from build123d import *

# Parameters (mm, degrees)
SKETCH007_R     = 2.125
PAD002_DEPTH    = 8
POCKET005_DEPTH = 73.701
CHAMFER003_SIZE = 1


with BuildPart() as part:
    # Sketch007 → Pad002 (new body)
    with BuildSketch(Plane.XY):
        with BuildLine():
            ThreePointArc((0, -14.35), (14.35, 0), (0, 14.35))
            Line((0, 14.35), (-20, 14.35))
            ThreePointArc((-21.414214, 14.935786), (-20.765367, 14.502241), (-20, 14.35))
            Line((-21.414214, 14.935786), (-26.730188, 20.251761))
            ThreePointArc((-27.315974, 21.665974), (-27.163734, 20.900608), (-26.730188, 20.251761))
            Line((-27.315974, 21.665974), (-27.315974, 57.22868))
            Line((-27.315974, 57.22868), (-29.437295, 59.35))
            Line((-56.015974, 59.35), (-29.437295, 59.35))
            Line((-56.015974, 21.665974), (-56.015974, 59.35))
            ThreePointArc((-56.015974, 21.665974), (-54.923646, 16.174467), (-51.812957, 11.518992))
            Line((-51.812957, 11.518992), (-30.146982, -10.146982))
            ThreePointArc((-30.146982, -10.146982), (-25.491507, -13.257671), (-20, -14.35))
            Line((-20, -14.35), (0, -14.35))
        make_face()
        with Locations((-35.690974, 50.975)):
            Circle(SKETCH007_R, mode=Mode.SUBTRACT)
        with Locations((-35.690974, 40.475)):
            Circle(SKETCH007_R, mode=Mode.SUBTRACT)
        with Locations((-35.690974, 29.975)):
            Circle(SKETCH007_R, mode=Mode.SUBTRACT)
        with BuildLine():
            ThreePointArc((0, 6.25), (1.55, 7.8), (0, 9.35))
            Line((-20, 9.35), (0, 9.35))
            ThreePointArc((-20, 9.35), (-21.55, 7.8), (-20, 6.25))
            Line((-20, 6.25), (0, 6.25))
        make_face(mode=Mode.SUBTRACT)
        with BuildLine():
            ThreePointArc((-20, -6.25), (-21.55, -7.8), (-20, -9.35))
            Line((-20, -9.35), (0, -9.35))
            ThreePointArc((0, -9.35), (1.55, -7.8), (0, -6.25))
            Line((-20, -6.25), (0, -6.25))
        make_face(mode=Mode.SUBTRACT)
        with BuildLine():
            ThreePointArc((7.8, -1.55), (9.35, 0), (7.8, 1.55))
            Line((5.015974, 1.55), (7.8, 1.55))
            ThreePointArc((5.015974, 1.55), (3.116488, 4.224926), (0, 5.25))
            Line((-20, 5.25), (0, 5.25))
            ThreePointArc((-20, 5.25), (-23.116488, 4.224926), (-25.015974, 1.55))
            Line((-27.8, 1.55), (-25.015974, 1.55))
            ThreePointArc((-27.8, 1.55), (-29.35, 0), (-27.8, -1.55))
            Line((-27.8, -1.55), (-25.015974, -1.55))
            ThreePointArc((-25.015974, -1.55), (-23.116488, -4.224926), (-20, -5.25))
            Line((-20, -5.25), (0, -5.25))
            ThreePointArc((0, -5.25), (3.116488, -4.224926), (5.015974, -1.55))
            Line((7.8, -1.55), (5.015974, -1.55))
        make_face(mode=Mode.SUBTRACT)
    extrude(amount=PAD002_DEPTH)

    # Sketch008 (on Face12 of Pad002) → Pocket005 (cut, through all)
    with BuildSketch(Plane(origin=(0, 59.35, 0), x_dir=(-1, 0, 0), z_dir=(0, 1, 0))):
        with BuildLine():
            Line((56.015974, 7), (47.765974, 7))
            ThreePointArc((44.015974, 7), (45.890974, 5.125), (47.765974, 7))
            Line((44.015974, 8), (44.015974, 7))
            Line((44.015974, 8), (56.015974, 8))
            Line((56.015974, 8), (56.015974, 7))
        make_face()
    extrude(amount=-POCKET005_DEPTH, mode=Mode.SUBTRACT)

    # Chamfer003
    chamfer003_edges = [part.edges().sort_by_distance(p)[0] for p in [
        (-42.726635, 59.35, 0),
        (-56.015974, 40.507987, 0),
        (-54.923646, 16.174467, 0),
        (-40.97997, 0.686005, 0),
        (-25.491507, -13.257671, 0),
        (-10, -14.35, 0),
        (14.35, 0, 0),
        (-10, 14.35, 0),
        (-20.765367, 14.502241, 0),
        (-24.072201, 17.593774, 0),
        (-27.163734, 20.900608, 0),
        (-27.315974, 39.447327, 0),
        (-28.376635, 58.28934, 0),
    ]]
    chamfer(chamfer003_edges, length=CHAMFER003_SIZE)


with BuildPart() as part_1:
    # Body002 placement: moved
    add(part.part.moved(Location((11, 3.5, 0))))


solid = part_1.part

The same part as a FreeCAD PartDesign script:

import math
import FreeCAD as App
import Part
import Sketcher

V = App.Vector
Q = App.Units.Quantity


def edges_at(feature, points):
    """Names of the edges that pass closest to the given points."""
    edges = feature.Shape.Edges
    near = lambda p: min(range(len(edges)), key=lambda i: edges[i].distToShape(Part.Vertex(*p))[0])
    return sorted({f"Edge{near(p) + 1}" for p in points})

doc = App.newDocument("Part")
body = doc.addObject("PartDesign::Body", "Body")

# Sketch on XY plane
sketch1 = doc.addObject("Sketcher::SketchObject", "Sketch")
body.addObject(sketch1)
sketch1.AttachmentSupport = (doc.XY_Plane, [""])
sketch1.MapMode = "FlatFace"
sketch1.addGeometry(Part.ArcOfCircle(Part.Circle(V(0, 0, 0), V(0, 0, 1), 14.35), math.radians(-90), math.radians(90)), False)
sketch1.addGeometry(Part.LineSegment(V(0, 14.35, 0), V(-20, 14.35, 0)), False)
sketch1.addGeometry(Part.ArcOfCircle(Part.Circle(V(-19.999999, 16.350004, 0), V(0, 0, 1), 2.000004), math.radians(-134.999933), math.radians(-90.000024)), False)
sketch1.addGeometry(Part.LineSegment(V(-21.414214, 14.935786, 0), V(-26.730188, 20.251761, 0)), False)
sketch1.addGeometry(Part.ArcOfCircle(Part.Circle(V(-25.315981, 21.665971, 0), V(0, 0, 1), 1.999993), math.radians(179.99992), math.radians(225.000066)), False)
sketch1.addGeometry(Part.LineSegment(V(-27.315974, 21.665974, 0), V(-27.315974, 57.22868, 0)), False)
sketch1.addGeometry(Part.LineSegment(V(-27.315974, 57.22868, 0), V(-29.437295, 59.35, 0)), False)
sketch1.addGeometry(Part.LineSegment(V(-29.437295, 59.35, 0), V(-56.015974, 59.35, 0)), False)
sketch1.addGeometry(Part.LineSegment(V(-56.015974, 59.35, 0), V(-56.015974, 21.665974, 0)), False)
sketch1.addGeometry(Part.ArcOfCircle(Part.Circle(V(-41.665979, 21.665972, 0), V(0, 0, 1), 14.349995), math.radians(179.99999), math.radians(225.000004)), False)
sketch1.addGeometry(Part.LineSegment(V(-51.812957, 11.518992, 0), V(-30.146982, -10.146982, 0)), False)
sketch1.addGeometry(Part.ArcOfCircle(Part.Circle(V(-19.999999, 0.000002, 0), V(0, 0, 1), 14.350002), math.radians(-134.999999), math.radians(-90.000005)), False)
sketch1.addGeometry(Part.LineSegment(V(-20, -14.35, 0), V(0, -14.35, 0)), False)
sketch1.addGeometry(Part.ArcOfCircle(Part.Circle(V(-20, -7.8, 0), V(0, 0, 1), 1.55), math.radians(90), math.radians(270)), False)
sketch1.addGeometry(Part.LineSegment(V(-20, -6.25, 0), V(0, -6.25, 0)), False)
sketch1.addGeometry(Part.ArcOfCircle(Part.Circle(V(0, -7.8, 0), V(0, 0, 1), 1.55), math.radians(-90), math.radians(90)), False)
sketch1.addGeometry(Part.LineSegment(V(0, -9.35, 0), V(-20, -9.35, 0)), False)
sketch1.addGeometry(Part.ArcOfCircle(Part.Circle(V(7.8, 0, 0), V(0, 0, 1), 1.55), math.radians(-90), math.radians(90)), False)
sketch1.addGeometry(Part.LineSegment(V(7.8, -1.55, 0), V(5.015974, -1.55, 0)), False)
sketch1.addGeometry(Part.ArcOfCircle(Part.Circle(V(0, 0, 0), V(0, 0, 1), 5.25), math.radians(-89.999995), math.radians(-17.171815)), False)
sketch1.addGeometry(Part.LineSegment(V(0, -5.25, 0), V(-20, -5.25, 0)), False)
sketch1.addGeometry(Part.ArcOfCircle(Part.Circle(V(-20, 0, 0), V(0, 0, 1), 5.25), math.radians(-162.828185), math.radians(-90.000005)), False)
sketch1.addGeometry(Part.LineSegment(V(-25.015974, -1.55, 0), V(-27.8, -1.55, 0)), False)
sketch1.addGeometry(Part.ArcOfCircle(Part.Circle(V(-27.8, 0, 0), V(0, 0, 1), 1.55), math.radians(90), math.radians(270)), False)
sketch1.addGeometry(Part.LineSegment(V(-27.8, 1.55, 0), V(-25.015974, 1.55, 0)), False)
sketch1.addGeometry(Part.ArcOfCircle(Part.Circle(V(-20, 0, 0), V(0, 0, 1), 5.25), math.radians(90.000005), math.radians(162.828185)), False)
sketch1.addGeometry(Part.LineSegment(V(-20, 5.25, 0), V(0, 5.25, 0)), False)
sketch1.addGeometry(Part.ArcOfCircle(Part.Circle(V(0, 0, 0), V(0, 0, 1), 5.25), math.radians(17.171815), math.radians(89.999995)), False)
sketch1.addGeometry(Part.LineSegment(V(5.015974, 1.55, 0), V(7.8, 1.55, 0)), False)
sketch1.addGeometry(Part.ArcOfCircle(Part.Circle(V(0, 7.8, 0), V(0, 0, 1), 1.55), math.radians(-90), math.radians(90)), False)
sketch1.addGeometry(Part.LineSegment(V(0, 6.25, 0), V(-20, 6.25, 0)), False)
sketch1.addGeometry(Part.ArcOfCircle(Part.Circle(V(-20, 7.8, 0), V(0, 0, 1), 1.55), math.radians(90), math.radians(270)), False)
sketch1.addGeometry(Part.LineSegment(V(-20, 9.35, 0), V(0, 9.35, 0)), False)
sketch1.addGeometry(Part.Circle(V(-35.690974, 29.975, 0), V(0, 0, 1), 2.125), False)
sketch1.addGeometry(Part.Circle(V(-35.690974, 40.475, 0), V(0, 0, 1), 2.125), False)
sketch1.addGeometry(Part.Circle(V(-35.690974, 50.975, 0), V(0, 0, 1), 2.125), False)
sketch1.addConstraint(Sketcher.Constraint("Tangent", 0, 2, 1, 1))
sketch1.addConstraint(Sketcher.Constraint("Tangent", 1, 2, 2, 2))
sketch1.addConstraint(Sketcher.Constraint("Tangent", 2, 1, 3, 1))
sketch1.addConstraint(Sketcher.Constraint("Tangent", 3, 2, 4, 2))
sketch1.addConstraint(Sketcher.Constraint("Tangent", 4, 1, 5, 1))
sketch1.addConstraint(Sketcher.Constraint("Coincident", 5, 2, 6, 1))
sketch1.addConstraint(Sketcher.Constraint("Coincident", 6, 2, 7, 1))
sketch1.addConstraint(Sketcher.Constraint("Coincident", 7, 2, 8, 1))
sketch1.addConstraint(Sketcher.Constraint("Tangent", 8, 2, 9, 1))
sketch1.addConstraint(Sketcher.Constraint("Tangent", 9, 2, 10, 1))
sketch1.addConstraint(Sketcher.Constraint("Tangent", 10, 2, 11, 1))
sketch1.addConstraint(Sketcher.Constraint("Tangent", 11, 2, 12, 1))
sketch1.addConstraint(Sketcher.Constraint("Tangent", 12, 2, 0, 1))
sketch1.addConstraint(Sketcher.Constraint("Tangent", 13, 1, 14, 1))
sketch1.addConstraint(Sketcher.Constraint("Tangent", 14, 2, 15, 2))
sketch1.addConstraint(Sketcher.Constraint("Tangent", 15, 1, 16, 1))
sketch1.addConstraint(Sketcher.Constraint("Tangent", 16, 2, 13, 2))
sketch1.addConstraint(Sketcher.Constraint("Tangent", 17, 1, 18, 1))
sketch1.addConstraint(Sketcher.Constraint("Coincident", 18, 2, 19, 2))
sketch1.addConstraint(Sketcher.Constraint("Tangent", 19, 1, 20, 1))
sketch1.addConstraint(Sketcher.Constraint("Tangent", 20, 2, 21, 2))
sketch1.addConstraint(Sketcher.Constraint("Coincident", 21, 1, 22, 1))
sketch1.addConstraint(Sketcher.Constraint("Tangent", 22, 2, 23, 2))
sketch1.addConstraint(Sketcher.Constraint("Tangent", 23, 1, 24, 1))
sketch1.addConstraint(Sketcher.Constraint("Coincident", 24, 2, 25, 2))
sketch1.addConstraint(Sketcher.Constraint("Tangent", 25, 1, 26, 1))
sketch1.addConstraint(Sketcher.Constraint("Tangent", 26, 2, 27, 2))
sketch1.addConstraint(Sketcher.Constraint("Coincident", 27, 1, 28, 1))
sketch1.addConstraint(Sketcher.Constraint("Tangent", 28, 2, 17, 2))
sketch1.addConstraint(Sketcher.Constraint("Tangent", 29, 1, 30, 1))
sketch1.addConstraint(Sketcher.Constraint("Tangent", 30, 2, 31, 2))
sketch1.addConstraint(Sketcher.Constraint("Tangent", 31, 1, 32, 1))
sketch1.addConstraint(Sketcher.Constraint("Tangent", 32, 2, 29, 2))
sketch1.addConstraint(Sketcher.Constraint("Horizontal", 1))
sketch1.addConstraint(Sketcher.Constraint("Vertical", 5))
sketch1.addConstraint(Sketcher.Constraint("Horizontal", 7))
sketch1.addConstraint(Sketcher.Constraint("Vertical", 8))
sketch1.addConstraint(Sketcher.Constraint("Horizontal", 12))
sketch1.addConstraint(Sketcher.Constraint("Horizontal", 14))
sketch1.addConstraint(Sketcher.Constraint("Horizontal", 16))
sketch1.addConstraint(Sketcher.Constraint("Horizontal", 18))
sketch1.addConstraint(Sketcher.Constraint("Horizontal", 20))
sketch1.addConstraint(Sketcher.Constraint("Horizontal", 22))
sketch1.addConstraint(Sketcher.Constraint("Horizontal", 24))
sketch1.addConstraint(Sketcher.Constraint("Horizontal", 26))
sketch1.addConstraint(Sketcher.Constraint("Horizontal", 28))
sketch1.addConstraint(Sketcher.Constraint("Horizontal", 30))
sketch1.addConstraint(Sketcher.Constraint("Horizontal", 32))
sketch1.addConstraint(Sketcher.Constraint("Coincident", 0, 3, -1, 1))
sketch1.addConstraint(Sketcher.Constraint("Coincident", 19, 3, -1, 1))
sketch1.addConstraint(Sketcher.Constraint("Coincident", 27, 3, -1, 1))
sketch1.addConstraint(Sketcher.Constraint("Coincident", 21, 3, 11, 3))
sketch1.addConstraint(Sketcher.Constraint("Coincident", 25, 3, 11, 3))
sketch1.addConstraint(Sketcher.Constraint("Equal", 0, 11))
sketch1.addConstraint(Sketcher.Constraint("Equal", 15, 17))
sketch1.addConstraint(Sketcher.Constraint("Equal", 17, 23))
sketch1.addConstraint(Sketcher.Constraint("Equal", 21, 25))
sketch1.addConstraint(Sketcher.Constraint("Equal", 23, 29))
sketch1.addConstraint(Sketcher.Constraint("Equal", 33, 34))
sketch1.addConstraint(Sketcher.Constraint("Equal", 34, 35))
sketch1.addConstraint(Sketcher.Constraint("Symmetric", 15, 3, 29, 3, -1, 1))
sketch1.addConstraint(Sketcher.Constraint("PointOnObject", 15, 3, -2))
sketch1.addConstraint(Sketcher.Constraint("PointOnObject", 17, 3, -1))
sketch1.addConstraint(Sketcher.Constraint("PointOnObject", 23, 3, -1))
sketch1.addConstraint(Sketcher.Constraint("Parallel", 3, 6))
sketch1.addConstraint(Sketcher.Constraint("Parallel", 6, 10))
sketch1.addConstraint(Sketcher.Constraint("Horizontal", 4, 3, 9, 3))
sketch1.addConstraint(Sketcher.Constraint("Vertical", 2, 3, 11, 3))
sketch1.addConstraint(Sketcher.Constraint("Vertical", 11, 3, 13, 3))
sketch1.addConstraint(Sketcher.Constraint("Vertical", 25, 3, 31, 3))
sketch1.addConstraint(Sketcher.Constraint("Vertical", 33, 3, 34, 3))
sketch1.addConstraint(Sketcher.Constraint("Vertical", 34, 3, 35, 3))
sketch1.addConstraint(Sketcher.Constraint("Equal", 18, 22))
sketch1.addConstraint(Sketcher.Constraint("Diameter", 33, Q("4.25 mm")))
sketch1.addConstraint(Sketcher.Constraint("DistanceX", 1, 2, 1, 1, Q("20 mm")))
sketch1.addConstraint(Sketcher.Constraint("Angle", 3, Q("134.999995 deg")))
sketch1.addConstraint(Sketcher.Constraint("Radius", 0, Q("14.35 mm")))
sketch1.addConstraint(Sketcher.Constraint("Radius", 13, Q("1.55 mm")))
sketch1.addConstraint(Sketcher.Constraint("Radius", 19, Q("5.25 mm")))
sketch1.addConstraint(Sketcher.Constraint("Distance", 6, Q("3 mm")))
sketch1.addConstraint(Sketcher.Constraint("DistanceY", 33, 3, 35, 3, Q("21 mm")))
sketch1.addConstraint(Sketcher.Constraint("DistanceY", 12, 2, 15, 1, Q("5 mm")))
sketch1.addConstraint(Sketcher.Constraint("DistanceX", -1, 1, 17, 3, Q("7.8 mm")))
sketch1.addConstraint(Sketcher.Constraint("DistanceY", 33, 3, 34, 3, Q("10.5 mm")))
sketch1.addConstraint(Sketcher.Constraint("DistanceX", 7, 2, 5, 2, Q("28.7 mm")))
sketch1.addConstraint(Sketcher.Constraint("DistanceY", -1, 1, 6, 2, Q("59.35 mm")))
sketch1.addConstraint(Sketcher.Constraint("DistanceY", -1, 1, 33, 3, Q("29.975 mm")))
sketch1.addConstraint(Sketcher.Constraint("Radius", 2, Q("2.000004 mm")))
sketch1.addConstraint(Sketcher.Constraint("Radius", 4, Q("1.999993 mm")))
sketch1.addConstraint(Sketcher.Constraint("DistanceX", 35, 3, 5, 2, Q("8.375 mm")))
sketch1.addConstraint(Sketcher.Constraint("DistanceY", 5, 1, 5, 2, Q("35.562706 mm")))
pad1 = doc.addObject("PartDesign::Pad", "Pad")
body.addObject(pad1)
pad1.Profile = sketch1
pad1.Length = 8

# Sketch on XZ plane
sketch2 = doc.addObject("Sketcher::SketchObject", "Sketch001")
body.addObject(sketch2)
sketch2.AttachmentSupport = (doc.XZ_Plane, [""])
sketch2.MapMode = "FlatFace"
sketch2.AttachmentOffset = App.Placement(V(0, 0, -59.35), App.Rotation())
sketch2.addGeometry(Part.LineSegment(V(-47.765974, 7, 0), V(-56.015974, 7, 0)), False)
sketch2.addGeometry(Part.LineSegment(V(-56.015974, 7, 0), V(-56.015974, 8, 0)), False)
sketch2.addGeometry(Part.LineSegment(V(-56.015974, 8, 0), V(-44.015974, 8, 0)), False)
sketch2.addGeometry(Part.LineSegment(V(-44.015974, 8, 0), V(-44.015974, 7, 0)), False)
sketch2.addGeometry(Part.ArcOfCircle(Part.Circle(V(-45.890974, 7, 0), V(0, 0, 1), 1.875), math.radians(180), math.radians(360)), False)
sketch2.addConstraint(Sketcher.Constraint("Coincident", 0, 2, 1, 1))
sketch2.addConstraint(Sketcher.Constraint("Coincident", 1, 2, 2, 1))
sketch2.addConstraint(Sketcher.Constraint("Coincident", 2, 2, 3, 1))
sketch2.addConstraint(Sketcher.Constraint("Tangent", 3, 2, 4, 2))
sketch2.addConstraint(Sketcher.Constraint("Coincident", 4, 1, 0, 1))
sketch2.addConstraint(Sketcher.Constraint("Horizontal", 0))
sketch2.addConstraint(Sketcher.Constraint("Vertical", 1))
sketch2.addConstraint(Sketcher.Constraint("Horizontal", 2))
sketch2.addConstraint(Sketcher.Constraint("Vertical", 3))
sketch2.addConstraint(Sketcher.Constraint("Horizontal", 4, 3, 0, 2))
sketch2.addConstraint(Sketcher.Constraint("DistanceX", 2, 1, 2, 2, Q("12 mm")))
sketch2.addConstraint(Sketcher.Constraint("DistanceY", 1, 1, 1, 2, Q("1 mm")))
sketch2.addConstraint(Sketcher.Constraint("DistanceY", -1, 1, 4, 3, Q("7 mm")))
sketch2.addConstraint(Sketcher.Constraint("Radius", 4, Q("1.875 mm")))
sketch2.addConstraint(Sketcher.Constraint("DistanceX", 4, 3, -1, 1, Q("45.890974 mm")))
pocket1 = doc.addObject("PartDesign::Pocket", "Pocket")
body.addObject(pocket1)
pocket1.Profile = sketch2
pocket1.Type = "ThroughAll"
pocket1.Reversed = True
doc.recompute()

chamfer = doc.addObject("PartDesign::Chamfer", "Chamfer")
body.addObject(chamfer)
chamfer.Base = (pocket1, edges_at(pocket1, [
    (-42.727, 59.35, 0),
    (-56.016, 40.508, 0),
    (-54.924, 16.174, 0),
    (-40.98, 0.686, 0),
    (-25.492, -13.258, 0),
    (-10, -14.35, 0),
    (14.35, 0, 0),
    (-10, 14.35, 0),
    (-20.765, 14.502, 0),
    (-24.072, 17.594, 0),
    (-27.164, 20.901, 0),
    (-27.316, 39.447, 0),
    (-28.377, 58.289, 0),
]))
chamfer.Size = 1
body2 = doc.addObject("PartDesign::Body", "Body001")
doc.recompute()

body.Placement = App.Placement(V(11, 3.5, 0), App.Rotation(V(0, 0, 1), 0))
boolean = doc.addObject("PartDesign::Boolean", "Boolean")
body2.addObject(boolean)
boolean.Type = "Fuse"
boolean.addObjects([body])

doc.recompute()
